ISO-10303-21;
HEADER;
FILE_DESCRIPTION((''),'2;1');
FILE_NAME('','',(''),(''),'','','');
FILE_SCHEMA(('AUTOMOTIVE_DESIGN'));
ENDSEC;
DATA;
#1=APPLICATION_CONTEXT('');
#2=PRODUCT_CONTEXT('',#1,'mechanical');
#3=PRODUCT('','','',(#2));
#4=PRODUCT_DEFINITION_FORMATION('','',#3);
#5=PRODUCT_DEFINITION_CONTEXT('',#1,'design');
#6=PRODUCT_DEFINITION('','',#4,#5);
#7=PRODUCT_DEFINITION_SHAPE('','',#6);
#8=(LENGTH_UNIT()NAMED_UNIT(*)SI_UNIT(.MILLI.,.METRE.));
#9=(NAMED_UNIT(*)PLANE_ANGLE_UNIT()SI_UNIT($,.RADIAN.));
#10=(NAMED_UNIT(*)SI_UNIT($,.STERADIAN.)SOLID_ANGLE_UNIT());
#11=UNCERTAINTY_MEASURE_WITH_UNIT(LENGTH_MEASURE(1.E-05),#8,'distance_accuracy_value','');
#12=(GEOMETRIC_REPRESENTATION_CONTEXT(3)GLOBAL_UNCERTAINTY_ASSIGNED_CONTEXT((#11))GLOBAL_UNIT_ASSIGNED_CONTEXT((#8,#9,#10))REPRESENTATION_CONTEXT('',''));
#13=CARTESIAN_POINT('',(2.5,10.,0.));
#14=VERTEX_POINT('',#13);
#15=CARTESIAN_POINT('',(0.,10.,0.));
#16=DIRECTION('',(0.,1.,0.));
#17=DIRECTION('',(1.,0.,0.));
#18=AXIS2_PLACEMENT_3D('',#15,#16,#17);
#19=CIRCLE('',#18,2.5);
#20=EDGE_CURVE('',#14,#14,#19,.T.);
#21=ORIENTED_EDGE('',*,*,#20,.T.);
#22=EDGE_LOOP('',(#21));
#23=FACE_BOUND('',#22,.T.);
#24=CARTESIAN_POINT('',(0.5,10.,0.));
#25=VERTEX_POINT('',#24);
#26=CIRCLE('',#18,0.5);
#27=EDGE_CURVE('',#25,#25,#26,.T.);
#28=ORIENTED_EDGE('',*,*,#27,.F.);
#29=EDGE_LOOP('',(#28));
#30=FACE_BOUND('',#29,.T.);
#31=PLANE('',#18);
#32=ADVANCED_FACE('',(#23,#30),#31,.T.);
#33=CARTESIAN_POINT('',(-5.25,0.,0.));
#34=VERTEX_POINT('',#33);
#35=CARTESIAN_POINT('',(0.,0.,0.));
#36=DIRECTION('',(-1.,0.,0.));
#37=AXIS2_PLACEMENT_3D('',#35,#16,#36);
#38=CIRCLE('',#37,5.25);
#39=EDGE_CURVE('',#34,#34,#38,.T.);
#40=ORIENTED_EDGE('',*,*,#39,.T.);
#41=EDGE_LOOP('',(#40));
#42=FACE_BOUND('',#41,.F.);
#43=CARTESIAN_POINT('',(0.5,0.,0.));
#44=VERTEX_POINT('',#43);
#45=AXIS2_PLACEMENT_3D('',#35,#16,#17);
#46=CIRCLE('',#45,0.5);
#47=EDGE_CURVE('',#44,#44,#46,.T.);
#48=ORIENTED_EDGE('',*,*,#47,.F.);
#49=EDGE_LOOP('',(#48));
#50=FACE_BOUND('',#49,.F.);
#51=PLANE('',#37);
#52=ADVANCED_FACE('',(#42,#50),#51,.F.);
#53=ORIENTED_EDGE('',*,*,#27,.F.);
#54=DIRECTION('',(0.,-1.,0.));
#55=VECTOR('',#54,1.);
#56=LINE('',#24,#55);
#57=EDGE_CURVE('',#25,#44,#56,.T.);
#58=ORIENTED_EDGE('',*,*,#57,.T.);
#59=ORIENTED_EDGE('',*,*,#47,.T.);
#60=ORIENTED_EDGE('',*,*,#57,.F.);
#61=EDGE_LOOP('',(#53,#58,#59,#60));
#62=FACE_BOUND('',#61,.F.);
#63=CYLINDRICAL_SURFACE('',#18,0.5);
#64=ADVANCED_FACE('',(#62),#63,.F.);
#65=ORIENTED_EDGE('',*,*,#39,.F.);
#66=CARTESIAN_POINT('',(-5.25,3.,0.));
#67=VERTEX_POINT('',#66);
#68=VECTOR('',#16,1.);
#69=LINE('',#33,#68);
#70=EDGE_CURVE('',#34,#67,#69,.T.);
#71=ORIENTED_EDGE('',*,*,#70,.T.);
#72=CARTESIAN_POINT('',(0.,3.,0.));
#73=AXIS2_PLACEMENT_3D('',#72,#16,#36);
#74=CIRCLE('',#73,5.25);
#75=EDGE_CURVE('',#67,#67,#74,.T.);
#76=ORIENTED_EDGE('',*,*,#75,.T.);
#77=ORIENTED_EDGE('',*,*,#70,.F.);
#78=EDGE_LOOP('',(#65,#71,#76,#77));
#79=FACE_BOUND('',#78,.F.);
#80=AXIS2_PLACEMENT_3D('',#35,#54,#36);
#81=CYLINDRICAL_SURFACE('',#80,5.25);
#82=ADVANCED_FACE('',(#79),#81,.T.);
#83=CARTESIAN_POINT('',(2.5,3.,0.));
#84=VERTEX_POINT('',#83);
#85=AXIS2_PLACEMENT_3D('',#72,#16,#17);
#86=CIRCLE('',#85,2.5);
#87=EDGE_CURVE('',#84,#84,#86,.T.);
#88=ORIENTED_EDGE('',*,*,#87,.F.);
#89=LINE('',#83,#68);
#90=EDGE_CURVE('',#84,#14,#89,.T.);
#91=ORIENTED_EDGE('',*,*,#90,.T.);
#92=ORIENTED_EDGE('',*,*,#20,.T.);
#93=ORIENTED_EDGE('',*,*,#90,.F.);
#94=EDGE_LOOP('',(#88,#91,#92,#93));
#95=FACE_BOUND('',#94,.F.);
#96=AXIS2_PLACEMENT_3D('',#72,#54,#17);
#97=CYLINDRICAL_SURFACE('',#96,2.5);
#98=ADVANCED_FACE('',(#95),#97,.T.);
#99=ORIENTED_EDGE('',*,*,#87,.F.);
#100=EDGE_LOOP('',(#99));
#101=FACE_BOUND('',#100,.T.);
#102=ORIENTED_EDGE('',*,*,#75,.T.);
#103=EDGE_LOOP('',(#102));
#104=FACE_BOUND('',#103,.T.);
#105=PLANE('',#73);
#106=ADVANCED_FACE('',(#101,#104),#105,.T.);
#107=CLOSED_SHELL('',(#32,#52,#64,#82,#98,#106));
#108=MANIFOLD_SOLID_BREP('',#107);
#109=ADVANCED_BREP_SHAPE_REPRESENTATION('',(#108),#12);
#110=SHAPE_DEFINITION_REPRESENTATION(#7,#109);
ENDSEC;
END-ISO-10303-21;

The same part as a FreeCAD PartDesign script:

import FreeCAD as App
import Part
import Sketcher

V = App.Vector

doc = App.newDocument("Part")
body = doc.addObject("PartDesign::Body", "Body")

sketch1 = doc.addObject("Sketcher::SketchObject", "Sketch")
body.addObject(sketch1)
sketch1.AttachmentSupport = (doc.XZ_Plane, [""])
sketch1.MapMode = "FlatFace"
sketch1.addGeometry(Part.Circle(V(0, 0, 0), V(0, 0, 1), 5), False)
sketch1.addConstraint([
    Sketcher.Constraint("Coincident", 0, 3, -1, 1),
    Sketcher.Constraint("Diameter", 0, 10.5),
])
pad1 = doc.addObject("PartDesign::Pad", "Pad")
body.addObject(pad1)
pad1.Profile = sketch1
pad1.Length = 3
pad1.Reversed = True

sketch2 = doc.addObject("Sketcher::SketchObject", "Sketch001")
body.addObject(sketch2)
sketch2.AttachmentSupport = (doc.XZ_Plane, [""])
sketch2.MapMode = "FlatFace"
sketch2.AttachmentOffset = App.Placement(V(0, 0, -3), App.Rotation())
sketch2.addGeometry(Part.Circle(V(0, 0, 0), V(0, 0, 1), 2.5), False)
sketch2.addConstraint([
    Sketcher.Constraint("Coincident", 0, 3, -1, 1),
    Sketcher.Constraint("Diameter", 0, 5.0),
])
pad2 = doc.addObject("PartDesign::Pad", "Pad001")
body.addObject(pad2)
pad2.Profile = sketch2
pad2.Length = 7
pad2.Reversed = True

sketch3 = doc.addObject("Sketcher::SketchObject", "Sketch002")
body.addObject(sketch3)
sketch3.AttachmentSupport = (doc.XZ_Plane, [""])
sketch3.MapMode = "FlatFace"
sketch3.AttachmentOffset = App.Placement(V(0, 0, -10), App.Rotation())
sketch3.addGeometry(Part.Circle(V(0, 0, 0), V(0, 0, 1), 0.5), False)
sketch3.addConstraint([
    Sketcher.Constraint("Coincident", 0, 3, -1, 1),
    Sketcher.Constraint("Diameter", 0, 1.0),
])
pocket1 = doc.addObject("PartDesign::Pocket", "Pocket")
body.addObject(pocket1)
pocket1.Profile = sketch3
pocket1.Type = "ThroughAll"
pocket1.Reversed = True

doc.recompute()
